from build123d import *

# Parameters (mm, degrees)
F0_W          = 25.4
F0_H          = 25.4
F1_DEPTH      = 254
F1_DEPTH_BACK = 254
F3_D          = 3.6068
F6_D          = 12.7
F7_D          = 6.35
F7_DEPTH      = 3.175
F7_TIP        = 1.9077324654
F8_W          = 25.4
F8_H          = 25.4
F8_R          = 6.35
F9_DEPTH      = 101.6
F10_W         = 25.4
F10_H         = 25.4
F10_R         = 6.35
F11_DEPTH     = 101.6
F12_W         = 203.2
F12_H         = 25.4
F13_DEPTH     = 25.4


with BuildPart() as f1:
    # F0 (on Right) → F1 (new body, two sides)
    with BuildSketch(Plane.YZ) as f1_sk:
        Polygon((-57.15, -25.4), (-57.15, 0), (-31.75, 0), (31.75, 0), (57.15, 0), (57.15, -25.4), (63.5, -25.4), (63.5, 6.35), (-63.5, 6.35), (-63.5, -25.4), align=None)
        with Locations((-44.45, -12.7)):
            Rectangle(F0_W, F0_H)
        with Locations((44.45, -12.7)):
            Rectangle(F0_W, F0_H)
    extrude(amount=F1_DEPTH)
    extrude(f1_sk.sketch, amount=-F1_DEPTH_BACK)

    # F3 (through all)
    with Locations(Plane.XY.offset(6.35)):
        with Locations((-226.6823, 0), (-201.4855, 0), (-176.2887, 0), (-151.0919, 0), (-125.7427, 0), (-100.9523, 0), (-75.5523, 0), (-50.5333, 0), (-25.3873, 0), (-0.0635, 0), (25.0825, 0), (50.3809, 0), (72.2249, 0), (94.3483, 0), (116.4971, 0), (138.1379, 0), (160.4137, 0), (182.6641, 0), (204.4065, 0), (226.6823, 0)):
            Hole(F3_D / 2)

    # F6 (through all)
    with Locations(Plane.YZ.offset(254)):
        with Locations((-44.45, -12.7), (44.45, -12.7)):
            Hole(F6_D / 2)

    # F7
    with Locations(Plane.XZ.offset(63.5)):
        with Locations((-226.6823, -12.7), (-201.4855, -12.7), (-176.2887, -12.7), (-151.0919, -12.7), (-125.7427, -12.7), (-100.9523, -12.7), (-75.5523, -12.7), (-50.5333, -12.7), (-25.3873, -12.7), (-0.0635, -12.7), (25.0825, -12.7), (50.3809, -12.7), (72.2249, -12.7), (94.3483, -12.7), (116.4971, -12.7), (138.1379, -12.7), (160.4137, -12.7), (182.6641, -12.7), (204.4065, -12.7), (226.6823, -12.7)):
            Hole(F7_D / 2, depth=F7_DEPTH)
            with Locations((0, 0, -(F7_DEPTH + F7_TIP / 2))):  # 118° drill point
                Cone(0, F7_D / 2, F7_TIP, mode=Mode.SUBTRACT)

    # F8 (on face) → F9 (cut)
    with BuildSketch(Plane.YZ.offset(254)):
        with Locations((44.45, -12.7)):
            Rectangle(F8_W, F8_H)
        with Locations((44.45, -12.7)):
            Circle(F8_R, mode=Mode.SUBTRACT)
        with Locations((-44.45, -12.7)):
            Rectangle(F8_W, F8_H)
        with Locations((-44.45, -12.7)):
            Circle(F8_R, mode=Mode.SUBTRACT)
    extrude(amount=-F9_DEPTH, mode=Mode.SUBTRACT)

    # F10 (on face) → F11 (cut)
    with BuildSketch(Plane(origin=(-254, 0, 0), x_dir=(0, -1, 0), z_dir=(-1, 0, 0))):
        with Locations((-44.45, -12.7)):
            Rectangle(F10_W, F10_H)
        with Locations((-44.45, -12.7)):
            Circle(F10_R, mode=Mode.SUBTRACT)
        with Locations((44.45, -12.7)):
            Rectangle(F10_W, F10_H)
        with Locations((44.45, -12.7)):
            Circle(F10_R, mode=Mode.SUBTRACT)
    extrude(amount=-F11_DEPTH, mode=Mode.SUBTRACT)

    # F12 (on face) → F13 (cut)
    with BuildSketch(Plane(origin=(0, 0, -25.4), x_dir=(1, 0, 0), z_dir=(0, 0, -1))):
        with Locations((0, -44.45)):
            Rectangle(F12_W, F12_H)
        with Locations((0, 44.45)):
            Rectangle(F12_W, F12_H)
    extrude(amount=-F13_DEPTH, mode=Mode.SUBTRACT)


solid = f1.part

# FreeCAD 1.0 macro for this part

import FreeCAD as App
import Part
import Sketcher
Q = App.Units.Quantity


def add_polygon(sketch, points):
    """Adds a closed chain of lines whose ends are joined by coincident constraints."""
    first, n = sketch.GeometryCount, len(points)
    for a, b in zip(points, points[1:] + points[:1]):
        sketch.addGeometry(Part.LineSegment(App.Vector(*a, 0), App.Vector(*b, 0)), False)
    for i in range(n):
        sketch.addConstraint(Sketcher.Constraint("Coincident", first + i, 2, first + (i + 1) % n, 1))

doc = App.newDocument("Part")
params = doc.addObject("Spreadsheet::Sheet", "Params")
for row, (alias, value) in enumerate([
    ("sketch1_width", "5 in"),
    ("sketch1_height", "1 in"),
    ("sketch1_width2", "2.5 in"),
    ("pad1_length", "10 in"),
    ("pad1_length2", "10 in"),
    ("sketch2_diameter", "0.142 in"),
    ("hole_diameter", "0.142 in"),
    ("sketch3_diameter", "0.5 in"),
    ("hole2_diameter", "0.5 in"),
    ("sketch4_diameter", "0.25 in"),
    ("hole3_diameter", "0.25 in"),
    ("hole3_depth", "0.125 in"),
    ("sketch5_diameter", "0.5 in"),
    ("sketch5_width", "1 in"),
    ("pocket1_length", "4 in"),
    ("sketch6_diameter", "0.5 in"),
    ("sketch6_width", "1 in"),
    ("pocket2_length", "4 in"),
    ("sketch7_width", "8 in"),
    ("sketch7_height", "1 in"),
    ("pocket3_length", "1 in"),
], start=1):
    params.set(f"A{row}", alias)
    params.set(f"B{row}", "=" + value)
    params.setAlias(f"B{row}", alias)

body = doc.addObject("PartDesign::Body", "Body")

# Sketch on YZ plane
sketch1 = doc.addObject("Sketcher::SketchObject", "Sketch")
body.addObject(sketch1)
sketch1.AttachmentSupport = (doc.YZ_Plane, [""])
sketch1.MapMode = "FlatFace"
add_polygon(sketch1, [(-32, 0), (32, 0), (32, -25), (64, -25), (64, 6), (-64, 6), (-64, -25), (-32, -25)])  # lines 0-7
sketch1.addConstraint([
    Sketcher.Constraint("Horizontal", 0),
    Sketcher.Constraint("Vertical", 1),
    Sketcher.Constraint("Horizontal", 2),
    Sketcher.Constraint("Vertical", 3),
    Sketcher.Constraint("Horizontal", 4),
    Sketcher.Constraint("Vertical", 5),
    Sketcher.Constraint("Horizontal", 6),
    Sketcher.Constraint("Vertical", 7),
    Sketcher.Constraint("Symmetric", 0, 2, 7, 2, -1, 1),
    Sketcher.Constraint("Symmetric", 2, 2, 5, 2, -2),
    Sketcher.Constraint("Equal", 6, 3),
    Sketcher.Constraint("DistanceX", 4, 2, 4, 1, Q("5 in")),
    Sketcher.Constraint("DistanceY", 1, 2, 1, 1, Q("1 in")),
    Sketcher.Constraint("DistanceX", 0, 1, 0, 2, Q("2.5 in")),
])
sketch1.setExpression("Constraints[19]", "Params.sketch1_width")
sketch1.setExpression("Constraints[20]", "Params.sketch1_height")
sketch1.setExpression("Constraints[21]", "Params.sketch1_width2")
pad1 = doc.addObject("PartDesign::Pad", "Pad")
body.addObject(pad1)
pad1.Profile = sketch1
pad1.Type = "TwoLengths"
pad1.setExpression("Length", "Params.pad1_length")
pad1.setExpression("Length2", "Params.pad1_length2")

# Sketch on XY plane
sketch2 = doc.addObject("Sketcher::SketchObject", "Sketch001")
body.addObject(sketch2)
sketch2.AttachmentSupport = (doc.XY_Plane, [""])
sketch2.MapMode = "FlatFace"
sketch2.AttachmentOffset = App.Placement(App.Vector(0, 0, 0.25 * 25.4), App.Rotation())
sketch2.addGeometry([
    Part.Circle(App.Vector(-226.7, 0, 0), App.Vector(0, 0, 1), 1.8),  # 0
    Part.Circle(App.Vector(-201.5, 0, 0), App.Vector(0, 0, 1), 1.8),  # 1
    Part.Circle(App.Vector(-176.3, 0, 0), App.Vector(0, 0, 1), 1.8),  # 2
    Part.Circle(App.Vector(-151.1, 0, 0), App.Vector(0, 0, 1), 1.8),  # 3
    Part.Circle(App.Vector(-125.7, 0, 0), App.Vector(0, 0, 1), 1.8),  # 4
    Part.Circle(App.Vector(-101, 0, 0), App.Vector(0, 0, 1), 1.8),  # 5
    Part.Circle(App.Vector(-75.6, 0, 0), App.Vector(0, 0, 1), 1.8),  # 6
    Part.Circle(App.Vector(-50.5, 0, 0), App.Vector(0, 0, 1), 1.8),  # 7
    Part.Circle(App.Vector(-25.4, 0, 0), App.Vector(0, 0, 1), 1.8),  # 8
    Part.Circle(App.Vector(-0.1, 0, 0), App.Vector(0, 0, 1), 1.8),  # 9
    Part.Circle(App.Vector(25.1, 0, 0), App.Vector(0, 0, 1), 1.8),  # 10
    Part.Circle(App.Vector(50.4, 0, 0), App.Vector(0, 0, 1), 1.8),  # 11
    Part.Circle(App.Vector(72.2, 0, 0), App.Vector(0, 0, 1), 1.8),  # 12
    Part.Circle(App.Vector(94.3, 0, 0), App.Vector(0, 0, 1), 1.8),  # 13
    Part.Circle(App.Vector(116.5, 0, 0), App.Vector(0, 0, 1), 1.8),  # 14
    Part.Circle(App.Vector(138.1, 0, 0), App.Vector(0, 0, 1), 1.8),  # 15
    Part.Circle(App.Vector(160.4, 0, 0), App.Vector(0, 0, 1), 1.8),  # 16
    Part.Circle(App.Vector(182.7, 0, 0), App.Vector(0, 0, 1), 1.8),  # 17
    Part.Circle(App.Vector(204.4, 0, 0), App.Vector(0, 0, 1), 1.8),  # 18
    Part.Circle(App.Vector(226.7, 0, 0), App.Vector(0, 0, 1), 1.8),  # 19
], False)
sketch2.addConstraint([
    Sketcher.Constraint("Equal", 0, 1),
    Sketcher.Constraint("Equal", 1, 2),
    Sketcher.Constraint("Equal", 2, 3),
    Sketcher.Constraint("Equal", 3, 4),
    Sketcher.Constraint("Equal", 4, 5),
    Sketcher.Constraint("Equal", 5, 6),
    Sketcher.Constraint("Equal", 6, 7),
    Sketcher.Constraint("Equal", 7, 8),
    Sketcher.Constraint("Equal", 8, 9),
    Sketcher.Constraint("Equal", 9, 10),
    Sketcher.Constraint("Equal", 10, 11),
    Sketcher.Constraint("Equal", 11, 12),
    Sketcher.Constraint("Equal", 12, 13),
    Sketcher.Constraint("Equal", 13, 14),
    Sketcher.Constraint("Equal", 14, 15),
    Sketcher.Constraint("Equal", 15, 16),
    Sketcher.Constraint("Equal", 16, 17),
    Sketcher.Constraint("Equal", 17, 18),
    Sketcher.Constraint("Equal", 18, 19),
    Sketcher.Constraint("Symmetric", 0, 3, 19, 3, -1, 1),
    Sketcher.Constraint("PointOnObject", 0, 3, -1),
    Sketcher.Constraint("PointOnObject", 1, 3, -1),
    Sketcher.Constraint("PointOnObject", 2, 3, -1),
    Sketcher.Constraint("PointOnObject", 3, 3, -1),
    Sketcher.Constraint("PointOnObject", 4, 3, -1),
    Sketcher.Constraint("PointOnObject", 5, 3, -1),
    Sketcher.Constraint("PointOnObject", 6, 3, -1),
    Sketcher.Constraint("PointOnObject", 7, 3, -1),
    Sketcher.Constraint("PointOnObject", 8, 3, -1),
    Sketcher.Constraint("PointOnObject", 9, 3, -1),
    Sketcher.Constraint("PointOnObject", 10, 3, -1),
    Sketcher.Constraint("PointOnObject", 11, 3, -1),
    Sketcher.Constraint("PointOnObject", 12, 3, -1),
    Sketcher.Constraint("PointOnObject", 13, 3, -1),
    Sketcher.Constraint("PointOnObject", 14, 3, -1),
    Sketcher.Constraint("PointOnObject", 15, 3, -1),
    Sketcher.Constraint("PointOnObject", 16, 3, -1),
    Sketcher.Constraint("PointOnObject", 17, 3, -1),
    Sketcher.Constraint("PointOnObject", 18, 3, -1),
    Sketcher.Constraint("Diameter", 0, Q("0.142 in")),
    Sketcher.Constraint("DistanceX", 5, 3, 6, 3, Q("1 in")),
    Sketcher.Constraint("DistanceX", 2, 3, 4, 3, Q("1.99 in")),
    Sketcher.Constraint("DistanceX", 0, 3, 5, 3, Q("4.95 in")),
    Sketcher.Constraint("DistanceX", 7, 3, 8, 3, Q("0.99 in")),
    Sketcher.Constraint("DistanceX", 9, 3, 10, 3, Q("0.99 in")),
    Sketcher.Constraint("DistanceX", 11, 3, 12, 3, Q("0.86 in")),
    Sketcher.Constraint("DistanceX", 0, 3, 1, 3, Q("0.992 in")),
    Sketcher.Constraint("DistanceX", 1, 3, 2, 3, Q("0.992 in")),
    Sketcher.Constraint("DistanceX", 2, 3, 3, 3, Q("0.992 in")),
    Sketcher.Constraint("DistanceX", 6, 3, 7, 3, Q("0.985 in")),
    Sketcher.Constraint("DistanceX", 8, 3, 9, 3, Q("0.997 in")),
    Sketcher.Constraint("DistanceX", 10, 3, 11, 3, Q("0.996 in")),
    Sketcher.Constraint("DistanceX", 12, 3, 13, 3, Q("0.871 in")),
    Sketcher.Constraint("DistanceX", 13, 3, 14, 3, Q("0.872 in")),
    Sketcher.Constraint("DistanceX", 14, 3, 15, 3, Q("0.852 in")),
    Sketcher.Constraint("DistanceX", 15, 3, 16, 3, Q("0.877 in")),
    Sketcher.Constraint("DistanceX", 16, 3, 17, 3, Q("0.876 in")),
    Sketcher.Constraint("DistanceX", 17, 3, 18, 3, Q("0.856 in")),
    Sketcher.Constraint("DistanceX", 18, 3, 19, 3, Q("0.877 in")),
])
sketch2.setExpression("Constraints[39]", "Params.sketch2_diameter")
doc.recompute()
hole = doc.addObject("PartDesign::Hole", "Hole")
body.addObject(hole)
hole.Profile = sketch2
hole.ThreadType = "None"
hole.setExpression("Diameter", "Params.hole_diameter")
hole.DepthType = "ThroughAll"

# Sketch on YZ plane
sketch3 = doc.addObject("Sketcher::SketchObject", "Sketch002")
body.addObject(sketch3)
sketch3.AttachmentSupport = (doc.YZ_Plane, [""])
sketch3.MapMode = "FlatFace"
sketch3.AttachmentOffset = App.Placement(App.Vector(0, 0, 10 * 25.4), App.Rotation())
sketch3.addGeometry([
    Part.Circle(App.Vector(-44, -13, 0), App.Vector(0, 0, 1), 6),
    Part.Circle(App.Vector(44, -13, 0), App.Vector(0, 0, 1), 6),
], False)
sketch3.addConstraint([
    Sketcher.Constraint("Equal", 0, 1),
    Sketcher.Constraint("Symmetric", 0, 3, 1, 3, -2),
    Sketcher.Constraint("Diameter", 0, Q("0.5 in")),
    Sketcher.Constraint("DistanceY", 0, 3, -1, 1, Q("0.5 in")),
    Sketcher.Constraint("DistanceX", 0, 3, 1, 3, Q("3.5 in")),
])
sketch3.setExpression("Constraints[2]", "Params.sketch3_diameter")
doc.recompute()
hole2 = doc.addObject("PartDesign::Hole", "Hole001")
body.addObject(hole2)
hole2.Profile = sketch3
hole2.ThreadType = "None"
hole2.setExpression("Diameter", "Params.hole2_diameter")
hole2.DepthType = "ThroughAll"

# Sketch on XZ plane
sketch4 = doc.addObject("Sketcher::SketchObject", "Sketch003")
body.addObject(sketch4)
sketch4.AttachmentSupport = (doc.XZ_Plane, [""])
sketch4.MapMode = "FlatFace"
sketch4.AttachmentOffset = App.Placement(App.Vector(0, 0, 2.5 * 25.4), App.Rotation())
sketch4.addGeometry([
    Part.Circle(App.Vector(-226.7, -12.7, 0), App.Vector(0, 0, 1), 3.2),  # 0
    Part.Circle(App.Vector(-201.5, -12.7, 0), App.Vector(0, 0, 1), 3.2),  # 1
    Part.Circle(App.Vector(-176.3, -12.7, 0), App.Vector(0, 0, 1), 3.2),  # 2
    Part.Circle(App.Vector(-151.1, -12.7, 0), App.Vector(0, 0, 1), 3.2),  # 3
    Part.Circle(App.Vector(-125.7, -12.7, 0), App.Vector(0, 0, 1), 3.2),  # 4
    Part.Circle(App.Vector(-101, -12.7, 0), App.Vector(0, 0, 1), 3.2),  # 5
    Part.Circle(App.Vector(-75.6, -12.7, 0), App.Vector(0, 0, 1), 3.2),  # 6
    Part.Circle(App.Vector(-50.5, -12.7, 0), App.Vector(0, 0, 1), 3.2),  # 7
    Part.Circle(App.Vector(-25.4, -12.7, 0), App.Vector(0, 0, 1), 3.2),  # 8
    Part.Circle(App.Vector(-0.1, -12.7, 0), App.Vector(0, 0, 1), 3.2),  # 9
    Part.Circle(App.Vector(25.1, -12.7, 0), App.Vector(0, 0, 1), 3.2),  # 10
    Part.Circle(App.Vector(50.4, -12.7, 0), App.Vector(0, 0, 1), 3.2),  # 11
    Part.Circle(App.Vector(72.2, -12.7, 0), App.Vector(0, 0, 1), 3.2),  # 12
    Part.Circle(App.Vector(94.3, -12.7, 0), App.Vector(0, 0, 1), 3.2),  # 13
    Part.Circle(App.Vector(116.5, -12.7, 0), App.Vector(0, 0, 1), 3.2),  # 14
    Part.Circle(App.Vector(138.1, -12.7, 0), App.Vector(0, 0, 1), 3.2),  # 15
    Part.Circle(App.Vector(160.4, -12.7, 0), App.Vector(0, 0, 1), 3.2),  # 16
    Part.Circle(App.Vector(182.7, -12.7, 0), App.Vector(0, 0, 1), 3.2),  # 17
    Part.Circle(App.Vector(204.4, -12.7, 0), App.Vector(0, 0, 1), 3.2),  # 18
    Part.Circle(App.Vector(226.7, -12.7, 0), App.Vector(0, 0, 1), 3.2),  # 19
], False)
sketch4.addConstraint([
    Sketcher.Constraint("Equal", 0, 1),
    Sketcher.Constraint("Equal", 1, 2),
    Sketcher.Constraint("Equal", 2, 3),
    Sketcher.Constraint("Equal", 3, 4),
    Sketcher.Constraint("Equal", 4, 5),
    Sketcher.Constraint("Equal", 5, 6),
    Sketcher.Constraint("Equal", 6, 7),
    Sketcher.Constraint("Equal", 7, 8),
    Sketcher.Constraint("Equal", 8, 9),
    Sketcher.Constraint("Equal", 9, 10),
    Sketcher.Constraint("Equal", 10, 11),
    Sketcher.Constraint("Equal", 11, 12),
    Sketcher.Constraint("Equal", 12, 13),
    Sketcher.Constraint("Equal", 13, 14),
    Sketcher.Constraint("Equal", 14, 15),
    Sketcher.Constraint("Equal", 15, 16),
    Sketcher.Constraint("Equal", 16, 17),
    Sketcher.Constraint("Equal", 17, 18),
    Sketcher.Constraint("Equal", 18, 19),
    Sketcher.Constraint("Symmetric", 0, 3, 19, 3, -2),
    Sketcher.Constraint("Horizontal", 0, 3, 1, 3),
    Sketcher.Constraint("Horizontal", 1, 3, 2, 3),
    Sketcher.Constraint("Horizontal", 2, 3, 3, 3),
    Sketcher.Constraint("Horizontal", 3, 3, 4, 3),
    Sketcher.Constraint("Horizontal", 4, 3, 5, 3),
    Sketcher.Constraint("Horizontal", 5, 3, 6, 3),
    Sketcher.Constraint("Horizontal", 6, 3, 7, 3),
    Sketcher.Constraint("Horizontal", 7, 3, 8, 3),
    Sketcher.Constraint("Horizontal", 8, 3, 9, 3),
    Sketcher.Constraint("Horizontal", 9, 3, 10, 3),
    Sketcher.Constraint("Horizontal", 10, 3, 11, 3),
    Sketcher.Constraint("Horizontal", 11, 3, 12, 3),
    Sketcher.Constraint("Horizontal", 12, 3, 13, 3),
    Sketcher.Constraint("Horizontal", 13, 3, 14, 3),
    Sketcher.Constraint("Horizontal", 14, 3, 15, 3),
    Sketcher.Constraint("Horizontal", 15, 3, 16, 3),
    Sketcher.Constraint("Horizontal", 16, 3, 17, 3),
    Sketcher.Constraint("Horizontal", 17, 3, 18, 3),
    Sketcher.Constraint("Diameter", 0, Q("0.25 in")),
    Sketcher.Constraint("DistanceX", 5, 3, 6, 3, Q("1 in")),
    Sketcher.Constraint("DistanceY", 0, 3, -1, 1, Q("0.5 in")),
    Sketcher.Constraint("DistanceX", 2, 3, 4, 3, Q("1.99 in")),
    Sketcher.Constraint("DistanceX", 0, 3, 5, 3, Q("4.95 in")),
    Sketcher.Constraint("DistanceX", 7, 3, 8, 3, Q("0.99 in")),
    Sketcher.Constraint("DistanceX", 9, 3, 10, 3, Q("0.99 in")),
    Sketcher.Constraint("DistanceX", 11, 3, 12, 3, Q("0.86 in")),
    Sketcher.Constraint("DistanceX", 0, 3, 1, 3, Q("0.992 in")),
    Sketcher.Constraint("DistanceX", 1, 3, 2, 3, Q("0.992 in")),
    Sketcher.Constraint("DistanceX", 2, 3, 3, 3, Q("0.992 in")),
    Sketcher.Constraint("DistanceX", 6, 3, 7, 3, Q("0.985 in")),
    Sketcher.Constraint("DistanceX", 8, 3, 9, 3, Q("0.997 in")),
    Sketcher.Constraint("DistanceX", 10, 3, 11, 3, Q("0.996 in")),
    Sketcher.Constraint("DistanceX", 12, 3, 13, 3, Q("0.871 in")),
    Sketcher.Constraint("DistanceX", 13, 3, 14, 3, Q("0.872 in")),
    Sketcher.Constraint("DistanceX", 14, 3, 15, 3, Q("0.852 in")),
    Sketcher.Constraint("DistanceX", 15, 3, 16, 3, Q("0.877 in")),
    Sketcher.Constraint("DistanceX", 16, 3, 17, 3, Q("0.876 in")),
    Sketcher.Constraint("DistanceX", 17, 3, 18, 3, Q("0.856 in")),
    Sketcher.Constraint("DistanceX", 18, 3, 19, 3, Q("0.877 in")),
])
sketch4.setExpression("Constraints[38]", "Params.sketch4_diameter")
doc.recompute()
hole3 = doc.addObject("PartDesign::Hole", "Hole002")
body.addObject(hole3)
hole3.Profile = sketch4
hole3.ThreadType = "None"
hole3.setExpression("Diameter", "Params.hole3_diameter")
hole3.DepthType = "Dimension"
hole3.setExpression("Depth", "Params.hole3_depth")
hole3.DrillPoint = "Angled"
hole3.DrillPointAngle = 118

# Sketch on YZ plane
sketch5 = doc.addObject("Sketcher::SketchObject", "Sketch004")
body.addObject(sketch5)
sketch5.AttachmentSupport = (doc.YZ_Plane, [""])
sketch5.MapMode = "FlatFace"
sketch5.AttachmentOffset = App.Placement(App.Vector(0, 0, 10 * 25.4), App.Rotation())
add_polygon(sketch5, [(32, 0), (32, -25), (57, -25), (57, 0)])  # lines 0-3
sketch5.addGeometry(Part.Circle(App.Vector(44, -13, 0), App.Vector(0, 0, 1), 6), False)  # 4
add_polygon(sketch5, [(-57, 0), (-57, -25), (-32, -25), (-32, 0)])  # lines 5-8
sketch5.addGeometry(Part.Circle(App.Vector(-44, -13, 0), App.Vector(0, 0, 1), 6), False)  # 9
sketch5.addConstraint([
    Sketcher.Constraint("Vertical", 0),
    Sketcher.Constraint("Horizontal", 1),
    Sketcher.Constraint("Vertical", 2),
    Sketcher.Constraint("Horizontal", 3),
    Sketcher.Constraint("Vertical", 5),
    Sketcher.Constraint("Horizontal", 6),
    Sketcher.Constraint("Vertical", 7),
    Sketcher.Constraint("Horizontal", 8),
    Sketcher.Constraint("Equal", 4, 9),
    Sketcher.Constraint("Symmetric", 3, 2, 7, 2, -1, 1),
    Sketcher.Constraint("Symmetric", 4, 3, 9, 3, -2),
    Sketcher.Constraint("Symmetric", 1, 2, 5, 2, -2),
    Sketcher.Constraint("PointOnObject", 2, 2, -1),
    Sketcher.Constraint("Equal", 8, 0),
    Sketcher.Constraint("Diameter", 4, Q("0.5 in")),
    Sketcher.Constraint("DistanceX", 1, 1, 1, 2, Q("1 in")),
    Sketcher.Constraint("DistanceX", 9, 3, 0, 2, Q("3 in")),
    Sketcher.Constraint("DistanceY", 4, 3, -1, 1, Q("0.5 in")),
    Sketcher.Constraint("DistanceX", 9, 3, 4, 3, Q("3.5 in")),
])
sketch5.setExpression("Constraints[22]", "Params.sketch5_diameter")
sketch5.setExpression("Constraints[23]", "Params.sketch5_width")
pocket1 = doc.addObject("PartDesign::Pocket", "Pocket")
body.addObject(pocket1)
pocket1.Profile = sketch5
pocket1.setExpression("Length", "Params.pocket1_length")

# Sketch on YZ plane
sketch6 = doc.addObject("Sketcher::SketchObject", "Sketch005")
body.addObject(sketch6)
sketch6.AttachmentSupport = (doc.YZ_Plane, [""])
sketch6.MapMode = "FlatFace"
sketch6.AttachmentOffset = App.Placement(App.Vector(0, 0, -10 * 25.4), App.Rotation())
add_polygon(sketch6, [(57, 0), (57, -25), (32, -25), (32, 0)])  # lines 0-3
sketch6.addGeometry(Part.Circle(App.Vector(44, -13, 0), App.Vector(0, 0, 1), 6), False)  # 4
add_polygon(sketch6, [(-32, 0), (-32, -25), (-57, -25), (-57, 0)])  # lines 5-8
sketch6.addGeometry(Part.Circle(App.Vector(-44, -13, 0), App.Vector(0, 0, 1), 6), False)  # 9
sketch6.addConstraint([
    Sketcher.Constraint("Vertical", 0),
    Sketcher.Constraint("Horizontal", 1),
    Sketcher.Constraint("Vertical", 2),
    Sketcher.Constraint("Horizontal", 3),
    Sketcher.Constraint("Vertical", 5),
    Sketcher.Constraint("Horizontal", 6),
    Sketcher.Constraint("Vertical", 7),
    Sketcher.Constraint("Horizontal", 8),
    Sketcher.Constraint("Equal", 4, 9),
    Sketcher.Constraint("Symmetric", 3, 2, 7, 2, -1, 1),
    Sketcher.Constraint("Symmetric", 4, 3, 9, 3, -2),
    Sketcher.Constraint("Symmetric", 1, 2, 5, 2, -2),
    Sketcher.Constraint("PointOnObject", 2, 2, -1),
    Sketcher.Constraint("Equal", 8, 0),
    Sketcher.Constraint("Diameter", 4, Q("0.5 in")),
    Sketcher.Constraint("DistanceX", 1, 2, 1, 1, Q("1 in")),
    Sketcher.Constraint("DistanceX", 9, 3, 0, 2, Q("4 in")),
    Sketcher.Constraint("DistanceY", 4, 3, -1, 1, Q("0.5 in")),
    Sketcher.Constraint("DistanceX", 9, 3, 4, 3, Q("3.5 in")),
])
sketch6.setExpression("Constraints[22]", "Params.sketch6_diameter")
sketch6.setExpression("Constraints[23]", "Params.sketch6_width")
pocket2 = doc.addObject("PartDesign::Pocket", "Pocket001")
body.addObject(pocket2)
pocket2.Profile = sketch6
pocket2.setExpression("Length", "Params.pocket2_length")
pocket2.Reversed = True

# Sketch on XY plane
sketch7 = doc.addObject("Sketcher::SketchObject", "Sketch006")
body.addObject(sketch7)
sketch7.AttachmentSupport = (doc.XY_Plane, [""])
sketch7.MapMode = "FlatFace"
sketch7.AttachmentOffset = App.Placement(App.Vector(0, 0, -1 * 25.4), App.Rotation())
add_polygon(sketch7, [(-102, 32), (-102, 57), (102, 57), (102, 32)])  # lines 0-3
add_polygon(sketch7, [(-102, -57), (-102, -32), (102, -32), (102, -57)])  # lines 4-7
sketch7.addConstraint([
    Sketcher.Constraint("Vertical", 0),
    Sketcher.Constraint("Horizontal", 1),
    Sketcher.Constraint("Vertical", 2),
    Sketcher.Constraint("Horizontal", 3),
    Sketcher.Constraint("Vertical", 4),
    Sketcher.Constraint("Horizontal", 5),
    Sketcher.Constraint("Vertical", 6),
    Sketcher.Constraint("Horizontal", 7),
    Sketcher.Constraint("Symmetric", 2, 2, 4, 2, -1, 1),
    Sketcher.Constraint("Symmetric", 0, 2, 6, 2, -1, 1),
    Sketcher.Constraint("Vertical", 3, 2, 4, 2),
    Sketcher.Constraint("DistanceX", 1, 1, 1, 2, Q("8 in")),
    Sketcher.Constraint("DistanceY", 0, 1, 0, 2, Q("1 in")),
    Sketcher.Constraint("DistanceY", 4, 2, 3, 2, Q("2.5 in")),
])
sketch7.setExpression("Constraints[19]", "Params.sketch7_width")
sketch7.setExpression("Constraints[20]", "Params.sketch7_height")
pocket3 = doc.addObject("PartDesign::Pocket", "Pocket002")
body.addObject(pocket3)
pocket3.Profile = sketch7
pocket3.setExpression("Length", "Params.pocket3_length")
pocket3.Reversed = True

doc.recompute()
